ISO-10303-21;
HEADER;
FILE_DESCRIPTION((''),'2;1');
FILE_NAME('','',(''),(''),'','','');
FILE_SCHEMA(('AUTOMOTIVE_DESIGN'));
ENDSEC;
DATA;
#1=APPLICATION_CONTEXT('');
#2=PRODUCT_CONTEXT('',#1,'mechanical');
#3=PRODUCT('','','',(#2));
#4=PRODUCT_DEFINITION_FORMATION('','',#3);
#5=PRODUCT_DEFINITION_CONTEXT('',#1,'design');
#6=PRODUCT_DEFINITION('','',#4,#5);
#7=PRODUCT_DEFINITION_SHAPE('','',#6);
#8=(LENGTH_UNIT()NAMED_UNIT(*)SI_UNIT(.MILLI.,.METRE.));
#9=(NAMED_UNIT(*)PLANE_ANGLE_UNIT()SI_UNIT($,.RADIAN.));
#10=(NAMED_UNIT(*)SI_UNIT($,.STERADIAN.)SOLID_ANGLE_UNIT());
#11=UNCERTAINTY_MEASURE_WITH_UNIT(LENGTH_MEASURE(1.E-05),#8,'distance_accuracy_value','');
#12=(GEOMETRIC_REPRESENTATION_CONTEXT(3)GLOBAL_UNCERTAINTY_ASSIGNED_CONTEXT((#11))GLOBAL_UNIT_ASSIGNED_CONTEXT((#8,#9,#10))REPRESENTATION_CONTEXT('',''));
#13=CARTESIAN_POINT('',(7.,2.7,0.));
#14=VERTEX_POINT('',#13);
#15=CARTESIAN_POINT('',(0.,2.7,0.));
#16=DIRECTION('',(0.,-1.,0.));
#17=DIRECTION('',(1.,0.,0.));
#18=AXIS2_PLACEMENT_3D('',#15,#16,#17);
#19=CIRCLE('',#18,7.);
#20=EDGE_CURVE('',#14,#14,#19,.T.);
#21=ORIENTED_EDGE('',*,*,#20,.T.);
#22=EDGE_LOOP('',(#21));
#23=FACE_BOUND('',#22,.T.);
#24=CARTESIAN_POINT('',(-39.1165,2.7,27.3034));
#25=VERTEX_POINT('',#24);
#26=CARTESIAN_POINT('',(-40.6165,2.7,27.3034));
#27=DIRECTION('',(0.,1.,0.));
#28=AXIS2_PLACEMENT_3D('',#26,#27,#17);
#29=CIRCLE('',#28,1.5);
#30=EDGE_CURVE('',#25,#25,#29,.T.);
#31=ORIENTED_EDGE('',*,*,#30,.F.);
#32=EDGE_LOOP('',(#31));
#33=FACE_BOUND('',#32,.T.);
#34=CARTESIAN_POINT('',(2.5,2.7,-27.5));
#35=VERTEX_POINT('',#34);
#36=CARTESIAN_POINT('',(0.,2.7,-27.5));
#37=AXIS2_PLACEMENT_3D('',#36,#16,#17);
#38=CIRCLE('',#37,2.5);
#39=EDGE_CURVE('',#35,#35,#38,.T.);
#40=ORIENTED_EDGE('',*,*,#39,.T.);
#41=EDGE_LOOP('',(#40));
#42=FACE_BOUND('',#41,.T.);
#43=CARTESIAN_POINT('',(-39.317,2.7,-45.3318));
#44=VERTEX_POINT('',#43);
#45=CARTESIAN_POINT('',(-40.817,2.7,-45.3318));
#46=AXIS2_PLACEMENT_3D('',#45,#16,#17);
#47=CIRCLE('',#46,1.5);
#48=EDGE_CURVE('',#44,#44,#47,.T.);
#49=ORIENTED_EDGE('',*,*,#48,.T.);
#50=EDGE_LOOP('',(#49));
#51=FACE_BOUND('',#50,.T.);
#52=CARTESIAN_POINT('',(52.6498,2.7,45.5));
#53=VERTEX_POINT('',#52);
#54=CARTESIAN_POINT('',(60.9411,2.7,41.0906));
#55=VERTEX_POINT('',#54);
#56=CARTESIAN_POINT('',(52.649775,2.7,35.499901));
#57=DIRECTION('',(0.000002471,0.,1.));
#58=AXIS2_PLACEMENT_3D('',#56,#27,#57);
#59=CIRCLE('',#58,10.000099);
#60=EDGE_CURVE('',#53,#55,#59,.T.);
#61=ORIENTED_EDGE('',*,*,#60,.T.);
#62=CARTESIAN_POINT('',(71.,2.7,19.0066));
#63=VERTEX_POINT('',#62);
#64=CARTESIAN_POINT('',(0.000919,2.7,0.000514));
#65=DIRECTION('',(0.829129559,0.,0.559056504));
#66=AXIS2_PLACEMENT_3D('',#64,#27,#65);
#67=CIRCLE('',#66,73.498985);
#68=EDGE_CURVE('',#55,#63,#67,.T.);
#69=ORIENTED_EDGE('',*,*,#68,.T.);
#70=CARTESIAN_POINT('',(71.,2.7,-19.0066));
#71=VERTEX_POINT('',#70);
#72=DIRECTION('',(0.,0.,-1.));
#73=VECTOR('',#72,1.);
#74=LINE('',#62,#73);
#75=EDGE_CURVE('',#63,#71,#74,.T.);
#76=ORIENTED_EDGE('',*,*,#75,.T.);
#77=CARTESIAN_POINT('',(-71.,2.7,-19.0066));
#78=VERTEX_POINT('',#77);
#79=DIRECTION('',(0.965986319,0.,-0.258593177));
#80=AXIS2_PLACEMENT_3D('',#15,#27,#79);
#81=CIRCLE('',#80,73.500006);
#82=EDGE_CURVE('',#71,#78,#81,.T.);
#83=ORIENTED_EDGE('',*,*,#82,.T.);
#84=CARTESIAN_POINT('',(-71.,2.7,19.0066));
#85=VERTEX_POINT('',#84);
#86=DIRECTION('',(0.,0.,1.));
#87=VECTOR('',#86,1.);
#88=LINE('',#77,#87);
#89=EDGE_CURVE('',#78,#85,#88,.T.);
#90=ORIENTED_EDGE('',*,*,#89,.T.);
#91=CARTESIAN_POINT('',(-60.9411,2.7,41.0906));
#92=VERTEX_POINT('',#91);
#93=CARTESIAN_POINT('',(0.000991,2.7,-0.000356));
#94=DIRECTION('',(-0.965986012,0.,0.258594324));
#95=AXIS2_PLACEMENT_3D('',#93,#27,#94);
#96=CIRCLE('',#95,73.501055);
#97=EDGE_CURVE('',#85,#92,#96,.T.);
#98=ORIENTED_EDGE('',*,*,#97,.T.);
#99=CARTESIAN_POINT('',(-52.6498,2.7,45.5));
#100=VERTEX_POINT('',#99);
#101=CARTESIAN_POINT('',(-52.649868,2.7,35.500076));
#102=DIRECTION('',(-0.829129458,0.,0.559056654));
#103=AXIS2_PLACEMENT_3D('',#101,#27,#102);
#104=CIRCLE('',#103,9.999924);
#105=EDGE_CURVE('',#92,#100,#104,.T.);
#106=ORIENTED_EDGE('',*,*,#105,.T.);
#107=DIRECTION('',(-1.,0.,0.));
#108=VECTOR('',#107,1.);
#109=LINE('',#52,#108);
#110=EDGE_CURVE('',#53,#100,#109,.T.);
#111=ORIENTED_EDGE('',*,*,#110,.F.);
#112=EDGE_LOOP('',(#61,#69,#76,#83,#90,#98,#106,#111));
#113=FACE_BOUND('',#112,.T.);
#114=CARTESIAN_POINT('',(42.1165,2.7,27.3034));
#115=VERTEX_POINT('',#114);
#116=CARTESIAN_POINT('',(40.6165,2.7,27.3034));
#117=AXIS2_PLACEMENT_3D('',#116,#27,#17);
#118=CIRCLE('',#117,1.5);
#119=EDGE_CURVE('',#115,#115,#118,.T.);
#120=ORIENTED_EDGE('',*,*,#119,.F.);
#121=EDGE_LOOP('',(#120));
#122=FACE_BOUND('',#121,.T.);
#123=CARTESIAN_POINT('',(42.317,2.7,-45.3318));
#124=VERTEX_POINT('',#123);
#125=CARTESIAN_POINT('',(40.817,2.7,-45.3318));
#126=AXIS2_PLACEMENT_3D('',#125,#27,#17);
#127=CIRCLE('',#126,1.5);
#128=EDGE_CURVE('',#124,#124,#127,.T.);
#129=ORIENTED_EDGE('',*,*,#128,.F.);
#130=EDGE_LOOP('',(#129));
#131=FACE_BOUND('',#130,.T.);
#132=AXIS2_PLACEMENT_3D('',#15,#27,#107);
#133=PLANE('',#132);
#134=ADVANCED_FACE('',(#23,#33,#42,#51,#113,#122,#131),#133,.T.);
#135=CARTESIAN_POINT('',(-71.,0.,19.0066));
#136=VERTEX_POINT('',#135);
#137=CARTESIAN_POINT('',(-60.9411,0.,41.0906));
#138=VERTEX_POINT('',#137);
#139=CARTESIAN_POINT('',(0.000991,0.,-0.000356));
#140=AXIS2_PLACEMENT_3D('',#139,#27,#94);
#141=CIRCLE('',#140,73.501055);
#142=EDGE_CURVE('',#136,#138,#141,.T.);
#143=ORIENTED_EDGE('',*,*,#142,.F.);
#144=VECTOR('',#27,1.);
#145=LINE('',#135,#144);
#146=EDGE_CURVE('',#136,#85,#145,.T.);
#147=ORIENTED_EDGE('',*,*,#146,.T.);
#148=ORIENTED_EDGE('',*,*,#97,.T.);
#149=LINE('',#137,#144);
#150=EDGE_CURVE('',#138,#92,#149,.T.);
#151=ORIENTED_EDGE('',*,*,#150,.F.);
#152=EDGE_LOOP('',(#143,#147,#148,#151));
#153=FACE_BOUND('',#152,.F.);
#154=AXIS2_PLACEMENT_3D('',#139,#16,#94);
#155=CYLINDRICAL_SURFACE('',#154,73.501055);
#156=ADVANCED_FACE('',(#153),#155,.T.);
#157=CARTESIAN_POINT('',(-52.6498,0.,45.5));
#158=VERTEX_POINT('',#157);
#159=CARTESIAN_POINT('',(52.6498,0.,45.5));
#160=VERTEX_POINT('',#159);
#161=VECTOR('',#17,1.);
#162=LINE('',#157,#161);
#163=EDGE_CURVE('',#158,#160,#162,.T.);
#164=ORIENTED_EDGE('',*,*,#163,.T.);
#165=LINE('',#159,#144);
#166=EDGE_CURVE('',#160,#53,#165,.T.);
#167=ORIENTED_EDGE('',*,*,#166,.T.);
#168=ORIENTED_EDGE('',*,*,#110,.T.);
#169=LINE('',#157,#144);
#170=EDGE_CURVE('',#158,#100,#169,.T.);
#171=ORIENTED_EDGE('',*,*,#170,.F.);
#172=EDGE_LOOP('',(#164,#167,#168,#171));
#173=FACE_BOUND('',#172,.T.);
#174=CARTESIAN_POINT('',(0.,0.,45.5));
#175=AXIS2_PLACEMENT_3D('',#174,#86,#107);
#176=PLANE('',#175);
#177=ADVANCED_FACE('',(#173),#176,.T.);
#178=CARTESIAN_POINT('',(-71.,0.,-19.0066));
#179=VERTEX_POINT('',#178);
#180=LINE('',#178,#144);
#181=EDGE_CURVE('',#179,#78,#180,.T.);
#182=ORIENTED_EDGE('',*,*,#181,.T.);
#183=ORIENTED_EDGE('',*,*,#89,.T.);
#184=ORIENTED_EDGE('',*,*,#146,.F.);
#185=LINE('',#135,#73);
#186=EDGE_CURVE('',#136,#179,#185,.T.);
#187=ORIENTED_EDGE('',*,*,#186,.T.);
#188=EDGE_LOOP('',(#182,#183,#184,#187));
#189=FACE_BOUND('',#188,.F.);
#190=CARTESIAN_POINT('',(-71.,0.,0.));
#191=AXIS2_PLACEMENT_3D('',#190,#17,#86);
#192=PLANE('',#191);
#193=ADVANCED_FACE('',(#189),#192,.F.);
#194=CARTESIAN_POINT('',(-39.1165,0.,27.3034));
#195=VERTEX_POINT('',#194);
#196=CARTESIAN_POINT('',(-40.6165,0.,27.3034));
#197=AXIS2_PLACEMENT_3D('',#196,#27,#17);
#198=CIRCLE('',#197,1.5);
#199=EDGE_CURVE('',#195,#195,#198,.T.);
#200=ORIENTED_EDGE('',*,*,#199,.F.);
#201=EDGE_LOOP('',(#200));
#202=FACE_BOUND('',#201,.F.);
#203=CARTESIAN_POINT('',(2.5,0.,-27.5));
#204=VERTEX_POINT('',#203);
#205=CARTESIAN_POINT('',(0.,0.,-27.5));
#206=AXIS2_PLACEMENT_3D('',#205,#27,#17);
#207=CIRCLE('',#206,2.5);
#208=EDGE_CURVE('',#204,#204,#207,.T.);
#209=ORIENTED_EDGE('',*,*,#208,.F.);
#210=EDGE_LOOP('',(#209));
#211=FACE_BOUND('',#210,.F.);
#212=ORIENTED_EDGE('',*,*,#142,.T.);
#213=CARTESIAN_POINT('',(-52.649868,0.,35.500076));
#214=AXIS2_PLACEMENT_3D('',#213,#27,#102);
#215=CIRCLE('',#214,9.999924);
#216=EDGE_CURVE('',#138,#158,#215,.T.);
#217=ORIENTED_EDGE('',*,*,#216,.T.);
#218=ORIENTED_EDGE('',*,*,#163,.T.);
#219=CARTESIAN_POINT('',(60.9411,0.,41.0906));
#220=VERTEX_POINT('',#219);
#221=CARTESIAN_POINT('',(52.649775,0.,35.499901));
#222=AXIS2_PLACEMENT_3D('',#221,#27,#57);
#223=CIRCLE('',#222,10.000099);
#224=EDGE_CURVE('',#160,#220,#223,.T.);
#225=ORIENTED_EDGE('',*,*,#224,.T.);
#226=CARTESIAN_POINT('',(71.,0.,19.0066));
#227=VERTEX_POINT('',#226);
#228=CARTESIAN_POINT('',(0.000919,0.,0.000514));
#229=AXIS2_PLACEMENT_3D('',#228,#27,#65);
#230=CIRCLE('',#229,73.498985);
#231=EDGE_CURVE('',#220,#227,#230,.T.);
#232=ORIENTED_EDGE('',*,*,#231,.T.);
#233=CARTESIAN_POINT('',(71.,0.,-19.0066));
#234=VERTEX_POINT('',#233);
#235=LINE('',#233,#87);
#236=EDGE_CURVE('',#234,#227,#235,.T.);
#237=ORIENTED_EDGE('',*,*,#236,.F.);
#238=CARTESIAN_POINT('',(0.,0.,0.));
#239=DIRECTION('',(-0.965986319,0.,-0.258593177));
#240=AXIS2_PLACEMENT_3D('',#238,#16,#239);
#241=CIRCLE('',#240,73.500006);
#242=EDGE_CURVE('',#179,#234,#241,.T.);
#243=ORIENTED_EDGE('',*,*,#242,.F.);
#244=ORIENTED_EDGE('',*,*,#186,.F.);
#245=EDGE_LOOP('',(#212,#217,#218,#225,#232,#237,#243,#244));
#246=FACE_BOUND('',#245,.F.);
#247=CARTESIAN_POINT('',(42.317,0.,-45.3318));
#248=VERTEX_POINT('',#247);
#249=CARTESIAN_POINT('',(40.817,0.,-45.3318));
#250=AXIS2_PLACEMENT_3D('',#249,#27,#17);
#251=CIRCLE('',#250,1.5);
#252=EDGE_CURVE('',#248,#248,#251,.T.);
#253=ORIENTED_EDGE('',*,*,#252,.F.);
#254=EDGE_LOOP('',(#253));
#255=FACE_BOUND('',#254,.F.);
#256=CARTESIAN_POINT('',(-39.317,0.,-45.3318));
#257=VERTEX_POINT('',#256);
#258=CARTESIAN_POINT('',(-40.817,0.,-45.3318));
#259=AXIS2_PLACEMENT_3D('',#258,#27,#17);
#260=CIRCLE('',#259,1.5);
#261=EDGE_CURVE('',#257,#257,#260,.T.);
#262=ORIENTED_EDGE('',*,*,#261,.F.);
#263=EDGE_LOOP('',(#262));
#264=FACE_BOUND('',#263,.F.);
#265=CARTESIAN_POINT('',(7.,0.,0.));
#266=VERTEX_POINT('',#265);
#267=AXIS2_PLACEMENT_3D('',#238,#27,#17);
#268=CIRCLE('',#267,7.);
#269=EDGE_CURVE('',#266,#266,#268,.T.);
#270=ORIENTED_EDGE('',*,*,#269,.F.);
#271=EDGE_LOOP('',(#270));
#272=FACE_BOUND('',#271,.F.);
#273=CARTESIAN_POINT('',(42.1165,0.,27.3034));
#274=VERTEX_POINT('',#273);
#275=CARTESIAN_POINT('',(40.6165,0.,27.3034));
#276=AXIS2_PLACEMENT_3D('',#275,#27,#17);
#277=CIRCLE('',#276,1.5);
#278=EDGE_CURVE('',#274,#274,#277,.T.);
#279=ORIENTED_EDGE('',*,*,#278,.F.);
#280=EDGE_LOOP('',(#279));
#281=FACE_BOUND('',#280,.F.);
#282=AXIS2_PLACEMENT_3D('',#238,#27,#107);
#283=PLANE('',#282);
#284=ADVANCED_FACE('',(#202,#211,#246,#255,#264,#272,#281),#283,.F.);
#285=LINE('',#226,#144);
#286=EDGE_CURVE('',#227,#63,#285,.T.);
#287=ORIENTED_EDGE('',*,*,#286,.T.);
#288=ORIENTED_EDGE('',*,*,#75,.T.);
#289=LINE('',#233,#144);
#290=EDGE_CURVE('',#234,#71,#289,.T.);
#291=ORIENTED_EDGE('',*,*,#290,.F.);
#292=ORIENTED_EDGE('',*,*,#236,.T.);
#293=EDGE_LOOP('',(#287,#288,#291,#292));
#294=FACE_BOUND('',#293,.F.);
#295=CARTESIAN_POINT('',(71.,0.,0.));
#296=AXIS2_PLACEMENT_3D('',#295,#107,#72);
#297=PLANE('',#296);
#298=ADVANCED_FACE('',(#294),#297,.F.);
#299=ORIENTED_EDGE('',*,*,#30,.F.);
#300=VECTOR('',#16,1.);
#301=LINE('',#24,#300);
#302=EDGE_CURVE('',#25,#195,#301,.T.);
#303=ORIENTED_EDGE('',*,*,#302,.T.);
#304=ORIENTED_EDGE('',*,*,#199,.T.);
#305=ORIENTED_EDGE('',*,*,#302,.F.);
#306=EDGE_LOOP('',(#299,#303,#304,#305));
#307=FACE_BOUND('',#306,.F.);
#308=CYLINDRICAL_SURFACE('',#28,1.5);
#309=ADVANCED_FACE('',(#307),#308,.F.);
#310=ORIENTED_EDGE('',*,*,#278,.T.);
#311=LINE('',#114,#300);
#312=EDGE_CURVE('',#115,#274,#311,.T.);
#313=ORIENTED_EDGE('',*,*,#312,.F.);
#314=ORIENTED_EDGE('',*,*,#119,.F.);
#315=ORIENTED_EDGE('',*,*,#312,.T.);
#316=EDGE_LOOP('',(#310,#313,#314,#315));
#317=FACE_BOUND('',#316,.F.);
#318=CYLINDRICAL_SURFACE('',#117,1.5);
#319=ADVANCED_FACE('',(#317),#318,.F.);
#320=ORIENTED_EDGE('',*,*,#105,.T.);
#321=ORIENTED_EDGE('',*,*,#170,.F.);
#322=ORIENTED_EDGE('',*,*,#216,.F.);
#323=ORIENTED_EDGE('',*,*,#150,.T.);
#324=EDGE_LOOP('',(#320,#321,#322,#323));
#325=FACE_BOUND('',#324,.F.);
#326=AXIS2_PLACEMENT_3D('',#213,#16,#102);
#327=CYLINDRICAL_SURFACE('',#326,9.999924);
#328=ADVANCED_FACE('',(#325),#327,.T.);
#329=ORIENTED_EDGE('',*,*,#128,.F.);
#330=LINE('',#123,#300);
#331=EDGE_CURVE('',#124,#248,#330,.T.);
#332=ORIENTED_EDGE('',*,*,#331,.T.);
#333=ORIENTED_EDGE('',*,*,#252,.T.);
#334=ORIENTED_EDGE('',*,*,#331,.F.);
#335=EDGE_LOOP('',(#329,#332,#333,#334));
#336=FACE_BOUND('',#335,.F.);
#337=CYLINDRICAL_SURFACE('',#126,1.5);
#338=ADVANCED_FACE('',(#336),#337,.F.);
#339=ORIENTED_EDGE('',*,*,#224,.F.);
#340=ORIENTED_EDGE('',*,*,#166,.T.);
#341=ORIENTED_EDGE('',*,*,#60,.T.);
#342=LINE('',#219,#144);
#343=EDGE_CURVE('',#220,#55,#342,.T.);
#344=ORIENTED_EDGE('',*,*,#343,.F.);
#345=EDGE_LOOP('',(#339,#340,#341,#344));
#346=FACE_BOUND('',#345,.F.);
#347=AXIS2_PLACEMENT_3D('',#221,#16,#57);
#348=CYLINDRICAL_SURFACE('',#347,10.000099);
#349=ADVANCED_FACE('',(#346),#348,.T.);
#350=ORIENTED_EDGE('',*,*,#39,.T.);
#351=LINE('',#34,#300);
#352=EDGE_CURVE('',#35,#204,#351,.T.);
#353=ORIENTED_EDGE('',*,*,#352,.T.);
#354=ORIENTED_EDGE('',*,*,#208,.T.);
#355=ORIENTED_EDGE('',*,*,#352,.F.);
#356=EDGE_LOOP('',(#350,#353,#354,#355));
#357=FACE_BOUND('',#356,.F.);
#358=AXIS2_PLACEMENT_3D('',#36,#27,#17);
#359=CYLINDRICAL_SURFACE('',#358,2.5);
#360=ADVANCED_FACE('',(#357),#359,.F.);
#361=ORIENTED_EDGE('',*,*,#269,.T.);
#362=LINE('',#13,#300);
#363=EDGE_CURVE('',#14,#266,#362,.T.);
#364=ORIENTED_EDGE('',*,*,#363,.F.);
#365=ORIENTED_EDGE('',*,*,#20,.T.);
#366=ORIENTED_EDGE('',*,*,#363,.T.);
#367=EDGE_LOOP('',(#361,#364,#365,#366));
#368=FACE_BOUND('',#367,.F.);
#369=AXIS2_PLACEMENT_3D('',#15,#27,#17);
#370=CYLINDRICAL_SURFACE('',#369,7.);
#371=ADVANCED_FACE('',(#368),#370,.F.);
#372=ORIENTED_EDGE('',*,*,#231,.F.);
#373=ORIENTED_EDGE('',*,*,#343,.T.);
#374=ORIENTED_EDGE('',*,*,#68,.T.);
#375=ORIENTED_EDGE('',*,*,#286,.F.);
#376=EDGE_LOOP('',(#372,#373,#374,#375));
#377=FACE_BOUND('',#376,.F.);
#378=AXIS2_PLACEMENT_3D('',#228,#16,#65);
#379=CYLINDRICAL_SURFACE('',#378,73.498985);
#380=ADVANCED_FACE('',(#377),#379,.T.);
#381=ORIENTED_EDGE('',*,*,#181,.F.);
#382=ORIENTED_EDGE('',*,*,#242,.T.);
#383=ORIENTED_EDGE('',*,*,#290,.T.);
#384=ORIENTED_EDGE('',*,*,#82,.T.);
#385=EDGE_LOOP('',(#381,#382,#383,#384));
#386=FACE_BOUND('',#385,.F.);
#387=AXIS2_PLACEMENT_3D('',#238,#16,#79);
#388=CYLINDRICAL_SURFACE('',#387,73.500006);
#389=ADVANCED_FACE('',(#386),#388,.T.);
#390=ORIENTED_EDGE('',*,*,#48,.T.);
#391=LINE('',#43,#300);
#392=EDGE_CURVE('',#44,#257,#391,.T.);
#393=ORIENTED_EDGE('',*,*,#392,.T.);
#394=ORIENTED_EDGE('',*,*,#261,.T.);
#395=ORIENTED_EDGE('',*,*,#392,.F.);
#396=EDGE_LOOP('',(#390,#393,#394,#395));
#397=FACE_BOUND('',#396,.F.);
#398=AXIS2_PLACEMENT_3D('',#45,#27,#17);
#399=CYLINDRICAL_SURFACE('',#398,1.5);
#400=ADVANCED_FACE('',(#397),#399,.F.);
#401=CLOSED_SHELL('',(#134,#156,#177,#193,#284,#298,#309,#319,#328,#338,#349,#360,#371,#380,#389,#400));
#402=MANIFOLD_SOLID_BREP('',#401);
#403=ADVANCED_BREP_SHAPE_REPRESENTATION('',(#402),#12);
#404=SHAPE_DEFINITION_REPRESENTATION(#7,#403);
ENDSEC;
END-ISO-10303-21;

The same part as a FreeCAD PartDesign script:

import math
import FreeCAD as App
import Part
import Sketcher
from FreeCAD import Vector
Q = App.Units.Quantity

doc = App.newDocument("Part")
body = doc.addObject("PartDesign::Body", "Body")

sketch1 = body.newObject("Sketcher::SketchObject", "Sketch")
sketch1.AttachmentSupport = (doc.getObject("XZ_Plane"), [""])
sketch1.MapMode = "FlatFace"
sketch1.addGeometry(Part.LineSegment(Vector(-53, 46, 0), Vector(53, 46, 0)), False)
sketch1.addGeometry(Part.ArcOfCircle(Part.Circle(Vector(53, 36, 0), Vector(0, 0, 1), 10), math.radians(34), math.radians(90)), False)
sketch1.addGeometry(Part.ArcOfCircle(Part.Circle(Vector(0, 0, 0), Vector(0, 0, 1), 73), math.radians(14.99), math.radians(33.99)), False)
sketch1.addGeometry(Part.LineSegment(Vector(71, 19, 0), Vector(71, -19, 0)), False)
sketch1.addGeometry(Part.ArcOfCircle(Part.Circle(Vector(0, 0, 0), Vector(0, 0, 1), 74), math.radians(-165), math.radians(-15)), False)
sketch1.addGeometry(Part.LineSegment(Vector(-71, -19, 0), Vector(-71, 19, 0)), False)
sketch1.addGeometry(Part.ArcOfCircle(Part.Circle(Vector(0, 0, 0), Vector(0, 0, 1), 74), math.radians(146.01), math.radians(165.01)), False)
sketch1.addGeometry(Part.ArcOfCircle(Part.Circle(Vector(-53, 36, 0), Vector(0, 0, 1), 10), math.radians(90), math.radians(146)), False)
sketch1.addConstraint(Sketcher.Constraint("Tangent", 0, 2, 1, 2))
sketch1.addConstraint(Sketcher.Constraint("Tangent", 1, 1, 2, 2))
sketch1.addConstraint(Sketcher.Constraint("Coincident", 2, 1, 3, 1))
sketch1.addConstraint(Sketcher.Constraint("Coincident", 3, 2, 4, 2))
sketch1.addConstraint(Sketcher.Constraint("Coincident", 4, 1, 5, 1))
sketch1.addConstraint(Sketcher.Constraint("Coincident", 5, 2, 6, 2))
sketch1.addConstraint(Sketcher.Constraint("Tangent", 6, 1, 7, 2))
sketch1.addConstraint(Sketcher.Constraint("Tangent", 7, 1, 0, 1))
sketch1.addConstraint(Sketcher.Constraint("Horizontal", 0))
sketch1.addConstraint(Sketcher.Constraint("Vertical", 3))
sketch1.addConstraint(Sketcher.Constraint("Vertical", 5))
sketch1.addConstraint(Sketcher.Constraint("Coincident", 4, 3, -1, 1))
sketch1.addConstraint(Sketcher.Constraint("Equal", 1, 7))
sketch1.addConstraint(Sketcher.Constraint("Symmetric", 2, 1, 4, 1, -1, 1))
sketch1.addConstraint(Sketcher.Constraint("Symmetric", 2, 3, 6, 3, -1))
sketch1.addConstraint(Sketcher.Constraint("Horizontal", 2, 1, 5, 2))
sketch1.addConstraint(Sketcher.Constraint("Horizontal", 1, 1, 6, 1))
sketch1.addConstraint(Sketcher.Constraint("Radius", 1, Q("10 mm")))
sketch1.addConstraint(Sketcher.Constraint("DistanceX", -1, 1, 2, 1, Q("71 mm")))
sketch1.addConstraint(Sketcher.Constraint("DistanceY", -1, 1, 0, 2, Q("45.5 mm")))
sketch1.addConstraint(Sketcher.Constraint("Radius", 4, Q("73.5 mm")))
sketch1.addConstraint(Sketcher.Constraint("Radius", 2, Q("73.499 mm")))
pad1 = body.newObject("PartDesign::Pad", "Pad")
pad1.Profile = sketch1
pad1.Length = 2.7
pad1.Reversed = True

sketch2 = body.newObject("Sketcher::SketchObject", "Sketch001")
sketch2.AttachmentSupport = (doc.getObject("XZ_Plane"), [""])
sketch2.MapMode = "FlatFace"
sketch2.AttachmentOffset = App.Placement(Vector(0, 0, -2.7), App.Rotation())
sketch2.addGeometry(Part.Circle(Vector(0, 0, 0), Vector(0, 0, 1), 7), False)
sketch2.addGeometry(Part.Circle(Vector(-40.8, -45.3, 0), Vector(0, 0, 1), 1.5), False)
sketch2.addGeometry(Part.Circle(Vector(0, -27.5, 0), Vector(0, 0, 1), 2.5), False)
sketch2.addGeometry(Part.Circle(Vector(40.8, -45.3, 0), Vector(0, 0, 1), 1.5), False)
sketch2.addGeometry(Part.Circle(Vector(-40.6, 27.3, 0), Vector(0, 0, 1), 1.5), False)
sketch2.addGeometry(Part.Circle(Vector(40.6, 27.3, 0), Vector(0, 0, 1), 1.5), False)
sketch2.addConstraint(Sketcher.Constraint("Coincident", 0, 3, -1, 1))
sketch2.addConstraint(Sketcher.Constraint("Equal", 1, 3))
sketch2.addConstraint(Sketcher.Constraint("Equal", 3, 4))
sketch2.addConstraint(Sketcher.Constraint("Equal", 4, 5))
sketch2.addConstraint(Sketcher.Constraint("Symmetric", 1, 3, 3, 3, -2))
sketch2.addConstraint(Sketcher.Constraint("Symmetric", 4, 3, 5, 3, -2))
sketch2.addConstraint(Sketcher.Constraint("PointOnObject", 2, 3, -2))
sketch2.addConstraint(Sketcher.Constraint("Diameter", 0, Q("14 mm")))
sketch2.addConstraint(Sketcher.Constraint("Diameter", 1, Q("3 mm")))
sketch2.addConstraint(Sketcher.Constraint("Diameter", 2, Q("5 mm")))
sketch2.addConstraint(Sketcher.Constraint("DistanceY", 2, 3, -1, 1, Q("27.5 mm")))
sketch2.addConstraint(Sketcher.Constraint("DistanceX", 1, 3, -1, 1, Q("40.817 mm")))
sketch2.addConstraint(Sketcher.Constraint("DistanceX", 4, 3, 5, 3, Q("81.233 mm")))
sketch2.addConstraint(Sketcher.Constraint("DistanceY", 1, 3, -1, 1, Q("45.3318 mm")))
sketch2.addConstraint(Sketcher.Constraint("DistanceY", -1, 1, 4, 3, Q("27.3034 mm")))
pocket1 = body.newObject("PartDesign::Pocket", "Pocket")
pocket1.Profile = sketch2
pocket1.Length = 2.7
pocket1.Reversed = True

doc.recompute()
